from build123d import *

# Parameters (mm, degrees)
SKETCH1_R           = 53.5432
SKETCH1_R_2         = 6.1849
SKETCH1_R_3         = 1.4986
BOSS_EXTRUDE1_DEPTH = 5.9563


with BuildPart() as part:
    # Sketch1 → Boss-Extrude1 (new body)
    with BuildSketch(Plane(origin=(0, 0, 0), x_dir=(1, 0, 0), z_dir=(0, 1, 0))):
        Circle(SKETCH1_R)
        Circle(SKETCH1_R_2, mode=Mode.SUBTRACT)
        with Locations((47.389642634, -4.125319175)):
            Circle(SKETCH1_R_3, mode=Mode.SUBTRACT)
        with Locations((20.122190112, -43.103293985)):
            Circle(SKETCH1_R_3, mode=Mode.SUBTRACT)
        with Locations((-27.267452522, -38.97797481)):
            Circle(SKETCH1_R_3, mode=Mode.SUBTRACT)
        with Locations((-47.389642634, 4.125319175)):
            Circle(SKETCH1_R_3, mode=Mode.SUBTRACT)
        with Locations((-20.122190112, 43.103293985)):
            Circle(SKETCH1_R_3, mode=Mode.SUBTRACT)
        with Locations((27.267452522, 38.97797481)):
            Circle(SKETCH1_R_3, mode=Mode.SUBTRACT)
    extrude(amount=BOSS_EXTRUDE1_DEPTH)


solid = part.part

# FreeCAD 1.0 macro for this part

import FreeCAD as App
import Part
import Sketcher

V = App.Vector
Q = App.Units.Quantity

doc = App.newDocument("Part")
body = doc.addObject("PartDesign::Body", "Body")

sketch1 = body.newObject("Sketcher::SketchObject", "Sketch")
sketch1.AttachmentSupport = (doc.getObject("XZ_Plane"), [""])
sketch1.MapMode = "FlatFace"
sketch1.addGeometry([
    Part.Circle(V(0, 0, 0), V(0, 0, 1), 53.5432),
    Part.Circle(V(-27.267453, 38.977975, 0), V(0, 0, 1), 1.4986),
    Part.Circle(V(20.12219, 43.103294, 0), V(0, 0, 1), 1.4986),
    Part.Circle(V(47.389643, 4.125319, 0), V(0, 0, 1), 1.4986),
    Part.Circle(V(-47.389643, -4.125319, 0), V(0, 0, 1), 1.4986),
    Part.Circle(V(-20.12219, -43.103294, 0), V(0, 0, 1), 1.4986),
    Part.Circle(V(0, 0, 0), V(0, 0, 1), 6.1849),
    Part.Circle(V(27.267453, -38.977975, 0), V(0, 0, 1), 1.4986),
], False)
sketch1.addConstraint([
    Sketcher.Constraint("Coincident", 0, 3, -1, 1),
    Sketcher.Constraint("Coincident", 6, 3, -1, 1),
    Sketcher.Constraint("Equal", 1, 2),
    Sketcher.Constraint("Equal", 2, 3),
    Sketcher.Constraint("Equal", 3, 4),
    Sketcher.Constraint("Equal", 4, 5),
    Sketcher.Constraint("Equal", 5, 7),
    Sketcher.Constraint("Symmetric", 3, 3, 4, 3, -1, 1),
    Sketcher.Constraint("Symmetric", 2, 3, 5, 3, -1, 1),
    Sketcher.Constraint("Symmetric", 1, 3, 7, 3, -1, 1),
    Sketcher.Constraint("Diameter", 0, Q("4.216 in")),
    Sketcher.Constraint("Diameter", 1, Q("0.118 in")),
    Sketcher.Constraint("Diameter", 6, Q("0.487 in")),
    Sketcher.Constraint("DistanceX", -1, 1, 2, 3, Q("20.12219 mm")),
    Sketcher.Constraint("DistanceY", -1, 1, 3, 3, Q("4.125319 mm")),
    Sketcher.Constraint("DistanceY", 1, 3, 2, 3, Q("4.125319 mm")),
    Sketcher.Constraint("DistanceX", 4, 3, 1, 3, Q("20.12219 mm")),
    Sketcher.Constraint("DistanceY", 5, 3, 1, 3, Q("82.081269 mm")),
    Sketcher.Constraint("DistanceX", 1, 3, -1, 1, Q("27.267453 mm")),
])
pad1 = body.newObject("PartDesign::Pad", "Pad")
pad1.Profile = sketch1
pad1.Length = Q("0.2345 in")
pad1.Reversed = True

doc.recompute()
